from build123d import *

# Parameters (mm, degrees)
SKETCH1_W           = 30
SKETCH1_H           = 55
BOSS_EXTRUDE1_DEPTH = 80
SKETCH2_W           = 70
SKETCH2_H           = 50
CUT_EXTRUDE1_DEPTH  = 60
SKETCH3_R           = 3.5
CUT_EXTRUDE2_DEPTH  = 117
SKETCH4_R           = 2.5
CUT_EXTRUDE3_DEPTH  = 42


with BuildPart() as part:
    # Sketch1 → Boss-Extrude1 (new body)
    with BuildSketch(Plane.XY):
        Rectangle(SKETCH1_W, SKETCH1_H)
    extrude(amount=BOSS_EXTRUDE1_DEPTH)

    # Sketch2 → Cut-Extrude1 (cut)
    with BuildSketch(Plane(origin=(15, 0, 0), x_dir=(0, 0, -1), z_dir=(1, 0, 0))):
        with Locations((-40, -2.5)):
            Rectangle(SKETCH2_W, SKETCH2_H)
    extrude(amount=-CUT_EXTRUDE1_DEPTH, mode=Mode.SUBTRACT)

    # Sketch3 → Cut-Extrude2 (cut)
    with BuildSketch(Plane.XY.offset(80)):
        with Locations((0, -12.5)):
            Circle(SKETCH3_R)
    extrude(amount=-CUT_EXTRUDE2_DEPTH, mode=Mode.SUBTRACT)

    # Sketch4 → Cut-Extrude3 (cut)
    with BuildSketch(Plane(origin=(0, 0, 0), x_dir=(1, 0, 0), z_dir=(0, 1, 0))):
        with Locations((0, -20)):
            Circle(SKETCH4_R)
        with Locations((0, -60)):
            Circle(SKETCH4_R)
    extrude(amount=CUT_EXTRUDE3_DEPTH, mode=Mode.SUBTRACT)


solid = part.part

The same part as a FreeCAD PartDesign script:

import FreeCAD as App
import Part
import Sketcher
from FreeCAD import Vector

doc = App.newDocument("Part")
body = doc.addObject("PartDesign::Body", "Body")

# Sketch on XY plane
sketch1 = body.newObject("Sketcher::SketchObject", "Sketch")
sketch1.AttachmentSupport = (doc.getObject("XY_Plane"), [""])
sketch1.MapMode = "FlatFace"
sketch1.addGeometry([
    Part.LineSegment(Vector(-15, 28, 0), Vector(-15, -28, 0)),
    Part.LineSegment(Vector(-15, -28, 0), Vector(15, -28, 0)),
    Part.LineSegment(Vector(15, -28, 0), Vector(15, 28, 0)),
    Part.LineSegment(Vector(15, 28, 0), Vector(-15, 28, 0)),
], False)
sketch1.addConstraint([
    Sketcher.Constraint("Coincident", 0, 2, 1, 1),
    Sketcher.Constraint("Coincident", 1, 2, 2, 1),
    Sketcher.Constraint("Coincident", 2, 2, 3, 1),
    Sketcher.Constraint("Coincident", 3, 2, 0, 1),
    Sketcher.Constraint("Vertical", 0),
    Sketcher.Constraint("Horizontal", 1),
    Sketcher.Constraint("Vertical", 2),
    Sketcher.Constraint("Horizontal", 3),
    Sketcher.Constraint("Symmetric", 0, 2, 2, 2, -1, 1),
    Sketcher.Constraint("DistanceX", 1, 1, 1, 2, 30.0),
    Sketcher.Constraint("DistanceY", 0, 2, 0, 1, 55.0),
])
pad1 = body.newObject("PartDesign::Pad", "Pad")
pad1.Profile = sketch1
pad1.Length = 80

# Sketch on YZ plane
sketch2 = body.newObject("Sketcher::SketchObject", "Sketch001")
sketch2.AttachmentSupport = (doc.getObject("YZ_Plane"), [""])
sketch2.MapMode = "FlatFace"
sketch2.AttachmentOffset = App.Placement(Vector(0, 0, 15), App.Rotation())
sketch2.addGeometry([
    Part.LineSegment(Vector(22, 75, 0), Vector(-28, 75, 0)),
    Part.LineSegment(Vector(-28, 75, 0), Vector(-28, 5, 0)),
    Part.LineSegment(Vector(-28, 5, 0), Vector(22, 5, 0)),
    Part.LineSegment(Vector(22, 5, 0), Vector(22, 75, 0)),
], False)
sketch2.addConstraint([
    Sketcher.Constraint("Coincident", 0, 2, 1, 1),
    Sketcher.Constraint("Coincident", 1, 2, 2, 1),
    Sketcher.Constraint("Coincident", 2, 2, 3, 1),
    Sketcher.Constraint("Coincident", 3, 2, 0, 1),
    Sketcher.Constraint("Horizontal", 0),
    Sketcher.Constraint("Vertical", 1),
    Sketcher.Constraint("Horizontal", 2),
    Sketcher.Constraint("Vertical", 3),
    Sketcher.Constraint("DistanceX", 0, 2, 0, 1, 50.0),
    Sketcher.Constraint("DistanceY", 1, 2, 1, 1, 70.0),
    Sketcher.Constraint("DistanceY", -1, 1, 0, 2, 75.0),
    Sketcher.Constraint("DistanceX", 0, 2, -1, 1, 27.5),
])
pocket1 = body.newObject("PartDesign::Pocket", "Pocket")
pocket1.Profile = sketch2
pocket1.Length = 60

# Sketch on XY plane
sketch3 = body.newObject("Sketcher::SketchObject", "Sketch002")
sketch3.AttachmentSupport = (doc.getObject("XY_Plane"), [""])
sketch3.MapMode = "FlatFace"
sketch3.AttachmentOffset = App.Placement(Vector(0, 0, 80), App.Rotation())
sketch3.addGeometry(Part.Circle(Vector(0, -12.5, 0), Vector(0, 0, 1), 3.5), False)
sketch3.addConstraint([
    Sketcher.Constraint("PointOnObject", 0, 3, -2),
    Sketcher.Constraint("Diameter", 0, 7.0),
    Sketcher.Constraint("DistanceY", 0, 3, -1, 1, 12.5),
])
pocket2 = body.newObject("PartDesign::Pocket", "Pocket001")
pocket2.Profile = sketch3
pocket2.Length = 117

# Sketch on XZ plane
sketch4 = body.newObject("Sketcher::SketchObject", "Sketch003")
sketch4.AttachmentSupport = (doc.getObject("XZ_Plane"), [""])
sketch4.MapMode = "FlatFace"
sketch4.addGeometry([
    Part.Circle(Vector(0, 20, 0), Vector(0, 0, 1), 2.5),
    Part.Circle(Vector(0, 60, 0), Vector(0, 0, 1), 2.5),
], False)
sketch4.addConstraint([
    Sketcher.Constraint("Equal", 0, 1),
    Sketcher.Constraint("PointOnObject", 0, 3, -2),
    Sketcher.Constraint("PointOnObject", 1, 3, -2),
    Sketcher.Constraint("Diameter", 0, 5.0),
    Sketcher.Constraint("DistanceY", -1, 1, 0, 3, 20.0),
    Sketcher.Constraint("DistanceY", -1, 1, 1, 3, 60.0),
])
pocket3 = body.newObject("PartDesign::Pocket", "Pocket002")
pocket3.Profile = sketch4
pocket3.Length = 42

doc.recompute()
